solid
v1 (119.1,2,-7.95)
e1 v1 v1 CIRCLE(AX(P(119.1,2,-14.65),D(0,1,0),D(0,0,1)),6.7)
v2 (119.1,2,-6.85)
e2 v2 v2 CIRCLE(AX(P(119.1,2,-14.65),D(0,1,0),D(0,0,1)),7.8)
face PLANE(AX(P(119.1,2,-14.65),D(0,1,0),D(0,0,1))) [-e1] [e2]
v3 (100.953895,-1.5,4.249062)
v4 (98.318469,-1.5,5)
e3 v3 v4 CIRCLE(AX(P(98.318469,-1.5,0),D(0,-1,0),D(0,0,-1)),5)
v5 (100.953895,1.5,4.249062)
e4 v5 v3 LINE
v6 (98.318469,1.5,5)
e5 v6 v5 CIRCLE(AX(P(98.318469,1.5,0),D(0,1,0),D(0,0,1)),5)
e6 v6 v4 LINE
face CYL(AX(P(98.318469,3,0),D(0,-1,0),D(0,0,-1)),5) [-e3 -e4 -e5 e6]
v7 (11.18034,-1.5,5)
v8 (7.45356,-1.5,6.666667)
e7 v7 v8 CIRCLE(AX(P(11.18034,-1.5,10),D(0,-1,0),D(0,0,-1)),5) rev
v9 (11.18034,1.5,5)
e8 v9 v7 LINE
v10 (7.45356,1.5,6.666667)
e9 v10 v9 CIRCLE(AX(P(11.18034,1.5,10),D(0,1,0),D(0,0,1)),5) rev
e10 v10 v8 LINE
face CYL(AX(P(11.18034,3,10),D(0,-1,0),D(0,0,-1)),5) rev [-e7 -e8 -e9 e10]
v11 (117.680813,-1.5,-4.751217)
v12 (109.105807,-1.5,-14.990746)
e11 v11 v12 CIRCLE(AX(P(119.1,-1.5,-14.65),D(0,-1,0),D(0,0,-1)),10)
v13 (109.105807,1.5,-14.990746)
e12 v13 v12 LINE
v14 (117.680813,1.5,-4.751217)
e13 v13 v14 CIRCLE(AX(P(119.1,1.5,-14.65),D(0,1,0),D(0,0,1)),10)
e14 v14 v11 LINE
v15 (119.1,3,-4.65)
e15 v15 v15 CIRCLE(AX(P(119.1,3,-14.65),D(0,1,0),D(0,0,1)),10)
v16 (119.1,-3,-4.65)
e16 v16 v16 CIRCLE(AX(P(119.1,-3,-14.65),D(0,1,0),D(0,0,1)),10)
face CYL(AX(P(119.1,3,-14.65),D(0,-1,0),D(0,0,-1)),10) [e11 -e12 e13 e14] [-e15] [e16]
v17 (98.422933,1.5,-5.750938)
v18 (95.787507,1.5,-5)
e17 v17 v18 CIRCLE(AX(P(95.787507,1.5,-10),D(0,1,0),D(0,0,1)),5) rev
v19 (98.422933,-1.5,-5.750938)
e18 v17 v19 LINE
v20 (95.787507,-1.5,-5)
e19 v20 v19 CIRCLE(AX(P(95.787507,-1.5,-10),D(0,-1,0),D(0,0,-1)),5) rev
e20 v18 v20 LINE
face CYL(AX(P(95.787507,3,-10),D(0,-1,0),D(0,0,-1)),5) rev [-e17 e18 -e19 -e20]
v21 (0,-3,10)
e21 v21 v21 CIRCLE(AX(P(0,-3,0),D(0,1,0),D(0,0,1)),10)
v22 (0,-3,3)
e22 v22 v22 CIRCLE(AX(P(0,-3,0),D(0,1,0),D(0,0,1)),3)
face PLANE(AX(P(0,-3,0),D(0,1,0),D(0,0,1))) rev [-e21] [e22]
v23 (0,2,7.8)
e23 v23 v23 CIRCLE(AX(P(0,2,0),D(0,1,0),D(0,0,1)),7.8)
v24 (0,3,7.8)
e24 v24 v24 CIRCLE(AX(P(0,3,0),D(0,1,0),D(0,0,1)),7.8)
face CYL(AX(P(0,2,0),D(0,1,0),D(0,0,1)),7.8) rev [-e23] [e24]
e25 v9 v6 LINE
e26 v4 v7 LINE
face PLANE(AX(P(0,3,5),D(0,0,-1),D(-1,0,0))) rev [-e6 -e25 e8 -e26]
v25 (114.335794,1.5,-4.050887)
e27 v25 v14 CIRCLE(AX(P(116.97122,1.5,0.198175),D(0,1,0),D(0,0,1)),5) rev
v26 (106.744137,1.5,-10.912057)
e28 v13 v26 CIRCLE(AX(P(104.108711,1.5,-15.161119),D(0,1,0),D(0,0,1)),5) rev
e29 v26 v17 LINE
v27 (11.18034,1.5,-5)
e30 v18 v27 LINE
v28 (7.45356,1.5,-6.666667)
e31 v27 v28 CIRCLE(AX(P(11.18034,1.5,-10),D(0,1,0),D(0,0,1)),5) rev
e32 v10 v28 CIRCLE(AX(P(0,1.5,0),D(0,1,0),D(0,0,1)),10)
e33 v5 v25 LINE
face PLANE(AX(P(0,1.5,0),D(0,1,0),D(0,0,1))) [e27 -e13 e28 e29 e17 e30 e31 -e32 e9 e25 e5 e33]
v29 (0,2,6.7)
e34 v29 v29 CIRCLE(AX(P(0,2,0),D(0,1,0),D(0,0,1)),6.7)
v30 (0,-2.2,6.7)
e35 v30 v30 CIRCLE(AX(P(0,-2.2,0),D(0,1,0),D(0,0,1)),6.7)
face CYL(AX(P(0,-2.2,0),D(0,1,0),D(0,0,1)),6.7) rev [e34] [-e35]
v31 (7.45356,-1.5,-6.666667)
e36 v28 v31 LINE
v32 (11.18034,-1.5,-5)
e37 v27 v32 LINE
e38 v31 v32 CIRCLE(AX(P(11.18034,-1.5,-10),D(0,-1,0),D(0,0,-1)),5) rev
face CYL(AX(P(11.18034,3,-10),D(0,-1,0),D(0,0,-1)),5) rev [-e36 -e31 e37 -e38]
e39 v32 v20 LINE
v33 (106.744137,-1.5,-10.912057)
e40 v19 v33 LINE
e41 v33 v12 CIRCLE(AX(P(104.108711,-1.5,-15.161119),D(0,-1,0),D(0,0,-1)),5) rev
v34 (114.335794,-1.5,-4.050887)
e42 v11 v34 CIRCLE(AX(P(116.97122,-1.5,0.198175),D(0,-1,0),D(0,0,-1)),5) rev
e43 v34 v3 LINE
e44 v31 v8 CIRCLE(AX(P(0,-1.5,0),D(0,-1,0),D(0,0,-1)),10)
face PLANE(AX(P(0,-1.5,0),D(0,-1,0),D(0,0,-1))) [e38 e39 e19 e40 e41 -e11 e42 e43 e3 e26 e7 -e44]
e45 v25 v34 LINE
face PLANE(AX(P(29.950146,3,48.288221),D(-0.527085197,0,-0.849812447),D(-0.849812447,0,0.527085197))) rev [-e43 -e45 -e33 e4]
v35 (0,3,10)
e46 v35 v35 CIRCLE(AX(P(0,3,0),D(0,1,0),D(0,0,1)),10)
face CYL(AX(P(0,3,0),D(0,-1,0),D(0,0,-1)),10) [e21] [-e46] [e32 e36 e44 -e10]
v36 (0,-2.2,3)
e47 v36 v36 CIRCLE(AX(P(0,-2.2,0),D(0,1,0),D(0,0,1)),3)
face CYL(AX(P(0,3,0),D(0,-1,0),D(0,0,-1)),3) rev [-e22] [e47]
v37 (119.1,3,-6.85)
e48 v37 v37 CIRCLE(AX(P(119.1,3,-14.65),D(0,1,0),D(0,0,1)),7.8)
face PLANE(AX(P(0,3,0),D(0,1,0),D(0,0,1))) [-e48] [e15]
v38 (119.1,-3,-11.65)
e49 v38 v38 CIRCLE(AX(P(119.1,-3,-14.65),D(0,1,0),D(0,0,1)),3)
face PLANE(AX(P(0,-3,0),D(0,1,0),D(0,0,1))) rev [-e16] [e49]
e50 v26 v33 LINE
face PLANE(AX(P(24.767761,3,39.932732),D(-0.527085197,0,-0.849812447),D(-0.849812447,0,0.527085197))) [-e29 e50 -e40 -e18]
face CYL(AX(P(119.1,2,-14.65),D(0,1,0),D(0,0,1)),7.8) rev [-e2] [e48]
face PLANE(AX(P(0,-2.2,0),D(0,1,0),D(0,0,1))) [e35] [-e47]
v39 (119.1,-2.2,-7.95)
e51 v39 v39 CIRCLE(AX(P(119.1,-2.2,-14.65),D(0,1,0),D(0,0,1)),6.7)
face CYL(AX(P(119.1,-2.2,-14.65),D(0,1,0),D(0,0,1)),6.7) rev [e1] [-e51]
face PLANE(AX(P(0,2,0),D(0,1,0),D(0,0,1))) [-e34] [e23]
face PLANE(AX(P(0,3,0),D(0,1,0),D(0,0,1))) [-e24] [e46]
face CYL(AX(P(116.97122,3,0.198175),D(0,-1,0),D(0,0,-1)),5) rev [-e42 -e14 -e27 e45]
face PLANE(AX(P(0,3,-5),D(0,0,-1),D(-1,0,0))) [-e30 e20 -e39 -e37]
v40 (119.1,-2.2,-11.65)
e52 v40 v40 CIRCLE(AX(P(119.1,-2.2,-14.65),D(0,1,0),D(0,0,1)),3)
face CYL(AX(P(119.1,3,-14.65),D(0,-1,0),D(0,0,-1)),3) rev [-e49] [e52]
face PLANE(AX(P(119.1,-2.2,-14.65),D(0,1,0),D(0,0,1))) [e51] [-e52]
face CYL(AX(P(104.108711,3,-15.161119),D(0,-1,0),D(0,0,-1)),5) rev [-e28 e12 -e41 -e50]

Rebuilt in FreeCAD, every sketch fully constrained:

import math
import FreeCAD as App
import Part
import Sketcher
from FreeCAD import Vector
Q = App.Units.Quantity

doc = App.newDocument("Part")
body = doc.addObject("PartDesign::Body", "Body")

sketch1 = body.newObject("Sketcher::SketchObject", "Sketch")
sketch1.AttachmentSupport = (doc.getObject("XZ_Plane"), [""])
sketch1.MapMode = "FlatFace"
sketch1.addGeometry(Part.ArcOfCircle(Part.Circle(Vector(11.2, -10, 0), Vector(0, 0, 1), 5), math.radians(90), math.radians(138)), False)
sketch1.addGeometry(Part.ArcOfCircle(Part.Circle(Vector(0, 0, 0), Vector(0, 0, 1), 10), math.radians(42), math.radians(318)), False)
sketch1.addGeometry(Part.ArcOfCircle(Part.Circle(Vector(11.2, 10, 0), Vector(0, 0, 1), 5), math.radians(-138), math.radians(-90)), False)
sketch1.addGeometry(Part.LineSegment(Vector(11.2, 5, 0), Vector(98.3, 5, 0)), False)
sketch1.addGeometry(Part.ArcOfCircle(Part.Circle(Vector(98.3, 0, 0), Vector(0, 0, 1), 5), math.radians(58), math.radians(90)), False)
sketch1.addGeometry(Part.LineSegment(Vector(101, 4.2, 0), Vector(114.3, -4.1, 0)), False)
sketch1.addGeometry(Part.ArcOfCircle(Part.Circle(Vector(117, 0.2, 0), Vector(0, 0, 1), 5), math.radians(-122), math.radians(-82)), False)
sketch1.addGeometry(Part.ArcOfCircle(Part.Circle(Vector(119.1, -14.7, 0), Vector(0, 0, 1), 10), math.radians(-178), math.radians(98)), False)
sketch1.addGeometry(Part.ArcOfCircle(Part.Circle(Vector(104.1, -15.2, 0), Vector(0, 0, 1), 5), math.radians(2), math.radians(58)), False)
sketch1.addGeometry(Part.LineSegment(Vector(106.7, -10.9, 0), Vector(98.4, -5.8, 0)), False)
sketch1.addGeometry(Part.ArcOfCircle(Part.Circle(Vector(95.8, -10, 0), Vector(0, 0, 1), 5), math.radians(58), math.radians(90)), False)
sketch1.addGeometry(Part.LineSegment(Vector(95.8, -5, 0), Vector(11.2, -5, 0)), False)
sketch1.addGeometry(Part.Circle(Vector(0, 0, 0), Vector(0, 0, 1), 3), False)
sketch1.addGeometry(Part.Circle(Vector(119.1, -14.7, 0), Vector(0, 0, 1), 3), False)
sketch1.addConstraint(Sketcher.Constraint("Tangent", 0, 2, 1, 2))
sketch1.addConstraint(Sketcher.Constraint("Tangent", 1, 1, 2, 1))
sketch1.addConstraint(Sketcher.Constraint("Tangent", 2, 2, 3, 1))
sketch1.addConstraint(Sketcher.Constraint("Tangent", 3, 2, 4, 2))
sketch1.addConstraint(Sketcher.Constraint("Tangent", 4, 1, 5, 1))
sketch1.addConstraint(Sketcher.Constraint("Tangent", 5, 2, 6, 1))
sketch1.addConstraint(Sketcher.Constraint("Tangent", 6, 2, 7, 2))
sketch1.addConstraint(Sketcher.Constraint("Tangent", 7, 1, 8, 1))
sketch1.addConstraint(Sketcher.Constraint("Tangent", 8, 2, 9, 1))
sketch1.addConstraint(Sketcher.Constraint("Tangent", 9, 2, 10, 1))
sketch1.addConstraint(Sketcher.Constraint("Tangent", 10, 2, 11, 1))
sketch1.addConstraint(Sketcher.Constraint("Tangent", 11, 2, 0, 1))
sketch1.addConstraint(Sketcher.Constraint("Horizontal", 3))
sketch1.addConstraint(Sketcher.Constraint("Horizontal", 11))
sketch1.addConstraint(Sketcher.Constraint("Coincident", 1, 3, -1, 1))
sketch1.addConstraint(Sketcher.Constraint("Coincident", 12, 3, -1, 1))
sketch1.addConstraint(Sketcher.Constraint("Coincident", 13, 3, 7, 3))
sketch1.addConstraint(Sketcher.Constraint("Equal", 0, 2))
sketch1.addConstraint(Sketcher.Constraint("Equal", 2, 4))
sketch1.addConstraint(Sketcher.Constraint("Equal", 4, 6))
sketch1.addConstraint(Sketcher.Constraint("Equal", 1, 7))
sketch1.addConstraint(Sketcher.Constraint("Equal", 6, 8))
sketch1.addConstraint(Sketcher.Constraint("Equal", 8, 10))
sketch1.addConstraint(Sketcher.Constraint("Equal", 12, 13))
sketch1.addConstraint(Sketcher.Constraint("PointOnObject", 4, 3, -1))
sketch1.addConstraint(Sketcher.Constraint("Parallel", 5, 9))
sketch1.addConstraint(Sketcher.Constraint("Vertical", 0, 3, 2, 3))
sketch1.addConstraint(Sketcher.Constraint("Diameter", 12, Q("6 mm")))
sketch1.addConstraint(Sketcher.Constraint("Radius", 0, Q("5 mm")))
sketch1.addConstraint(Sketcher.Constraint("Radius", 1, Q("10 mm")))
sketch1.addConstraint(Sketcher.Constraint("DistanceX", -1, 1, 7, 3, Q("119.1 mm")))
sketch1.addConstraint(Sketcher.Constraint("DistanceY", 7, 3, -1, 1, Q("14.65 mm")))
sketch1.addConstraint(Sketcher.Constraint("DistanceX", 3, 1, 3, 2, Q("87.138129 mm")))
sketch1.addConstraint(Sketcher.Constraint("DistanceX", 4, 1, 5, 2, Q("13.381898 mm")))
sketch1.addConstraint(Sketcher.Constraint("Distance", 9, Q("9.791812 mm")))
pad1 = body.newObject("PartDesign::Pad", "Pad")
pad1.Profile = sketch1
pad1.Length = 6
pad1.Midplane = True

sketch2 = body.newObject("Sketcher::SketchObject", "Sketch001")
sketch2.AttachmentSupport = (doc.getObject("XZ_Plane"), [""])
sketch2.MapMode = "FlatFace"
sketch2.AttachmentOffset = App.Placement(Vector(0, 0, -3), App.Rotation())
sketch2.addGeometry(Part.Circle(Vector(119, -15, 0), Vector(0, 0, 1), 8), False)
sketch2.addGeometry(Part.Circle(Vector(0, 0, 0), Vector(0, 0, 1), 8), False)
sketch2.addConstraint(Sketcher.Constraint("Coincident", 1, 3, -1, 1))
sketch2.addConstraint(Sketcher.Constraint("Equal", 0, 1))
sketch2.addConstraint(Sketcher.Constraint("Diameter", 0, Q("15.6 mm")))
sketch2.addConstraint(Sketcher.Constraint("DistanceX", -1, 1, 0, 3, Q("119.1 mm")))
sketch2.addConstraint(Sketcher.Constraint("DistanceY", 0, 3, -1, 1, Q("14.65 mm")))
pocket1 = body.newObject("PartDesign::Pocket", "Pocket")
pocket1.Profile = sketch2
pocket1.Length = 1
pocket1.Reversed = True

sketch3 = body.newObject("Sketcher::SketchObject", "Sketch002")
sketch3.AttachmentSupport = (doc.getObject("XZ_Plane"), [""])
sketch3.MapMode = "FlatFace"
sketch3.AttachmentOffset = App.Placement(Vector(0, 0, -3), App.Rotation())
sketch3.addGeometry(Part.Circle(Vector(0, 0, 0), Vector(0, 0, 1), 7), False)
sketch3.addGeometry(Part.Circle(Vector(119, -15, 0), Vector(0, 0, 1), 7), False)
sketch3.addConstraint(Sketcher.Constraint("Coincident", 0, 3, -1, 1))
sketch3.addConstraint(Sketcher.Constraint("Equal", 0, 1))
sketch3.addConstraint(Sketcher.Constraint("Diameter", 0, Q("13.4 mm")))
sketch3.addConstraint(Sketcher.Constraint("DistanceX", -1, 1, 1, 3, Q("119.1 mm")))
sketch3.addConstraint(Sketcher.Constraint("DistanceY", 1, 3, -1, 1, Q("14.65 mm")))
pocket2 = body.newObject("PartDesign::Pocket", "Pocket001")
pocket2.Profile = sketch3
pocket2.Length = 5.2
pocket2.Reversed = True

sketch4 = body.newObject("Sketcher::SketchObject", "Sketch003")
sketch4.AttachmentSupport = (doc.getObject("XZ_Plane"), [""])
sketch4.MapMode = "FlatFace"
sketch4.AttachmentOffset = App.Placement(Vector(0, 0, -3), App.Rotation())
sketch4.addGeometry(Part.LineSegment(Vector(106.7, -10.9, 0), Vector(98.4, -5.8, 0)), False)
sketch4.addGeometry(Part.ArcOfCircle(Part.Circle(Vector(95.8, -10, 0), Vector(0, 0, 1), 5), math.radians(58), math.radians(90)), False)
sketch4.addGeometry(Part.LineSegment(Vector(95.8, -5, 0), Vector(11.2, -5, 0)), False)
sketch4.addGeometry(Part.ArcOfCircle(Part.Circle(Vector(11.2, -10, 0), Vector(0, 0, 1), 5), math.radians(90), math.radians(138)), False)
sketch4.addGeometry(Part.ArcOfCircle(Part.Circle(Vector(0, 0, 0), Vector(0, 0, 1), 10), math.radians(-42), math.radians(0)), False)
sketch4.addGeometry(Part.ArcOfCircle(Part.Circle(Vector(0, 0, 0), Vector(0, 0, 1), 10), math.radians(0), math.radians(42)), False)
sketch4.addGeometry(Part.ArcOfCircle(Part.Circle(Vector(11.2, 10, 0), Vector(0, 0, 1), 5), math.radians(-138), math.radians(-90)), False)
sketch4.addGeometry(Part.LineSegment(Vector(11.2, 5, 0), Vector(98.3, 5, 0)), False)
sketch4.addGeometry(Part.ArcOfCircle(Part.Circle(Vector(98.3, 0, 0), Vector(0, 0, 1), 5), math.radians(58), math.radians(90)), False)
sketch4.addGeometry(Part.LineSegment(Vector(101, 4.2, 0), Vector(114.3, -4.1, 0)), False)
sketch4.addGeometry(Part.ArcOfCircle(Part.Circle(Vector(117, 0.2, 0), Vector(0, 0, 1), 5), math.radians(-122), math.radians(-82)), False)
sketch4.addGeometry(Part.ArcOfCircle(Part.Circle(Vector(119.1, -14.7, 0), Vector(0, 0, 1), 10), math.radians(98), math.radians(182)), False)
sketch4.addGeometry(Part.ArcOfCircle(Part.Circle(Vector(104.1, -15.2, 0), Vector(0, 0, 1), 5), math.radians(2), math.radians(58)), False)
sketch4.addConstraint(Sketcher.Constraint("Tangent", 0, 2, 1, 1))
sketch4.addConstraint(Sketcher.Constraint("Tangent", 1, 2, 2, 1))
sketch4.addConstraint(Sketcher.Constraint("Tangent", 2, 2, 3, 1))
sketch4.addConstraint(Sketcher.Constraint("Tangent", 3, 2, 4, 1))
sketch4.addConstraint(Sketcher.Constraint("Tangent", 4, 2, 5, 1))
sketch4.addConstraint(Sketcher.Constraint("Tangent", 5, 2, 6, 1))
sketch4.addConstraint(Sketcher.Constraint("Tangent", 6, 2, 7, 1))
sketch4.addConstraint(Sketcher.Constraint("Tangent", 7, 2, 8, 2))
sketch4.addConstraint(Sketcher.Constraint("Tangent", 8, 1, 9, 1))
sketch4.addConstraint(Sketcher.Constraint("Tangent", 9, 2, 10, 1))
sketch4.addConstraint(Sketcher.Constraint("Tangent", 10, 2, 11, 1))
sketch4.addConstraint(Sketcher.Constraint("Tangent", 11, 2, 12, 1))
sketch4.addConstraint(Sketcher.Constraint("Tangent", 12, 2, 0, 1))
sketch4.addConstraint(Sketcher.Constraint("Horizontal", 2))
sketch4.addConstraint(Sketcher.Constraint("Horizontal", 7))
sketch4.addConstraint(Sketcher.Constraint("Coincident", 4, 3, -1, 1))
sketch4.addConstraint(Sketcher.Constraint("Equal", 1, 3))
sketch4.addConstraint(Sketcher.Constraint("Equal", 4, 5))
sketch4.addConstraint(Sketcher.Constraint("Equal", 3, 6))
sketch4.addConstraint(Sketcher.Constraint("Equal", 6, 8))
sketch4.addConstraint(Sketcher.Constraint("Equal", 8, 10))
sketch4.addConstraint(Sketcher.Constraint("Equal", 5, 11))
sketch4.addConstraint(Sketcher.Constraint("Equal", 10, 12))
sketch4.addConstraint(Sketcher.Constraint("PointOnObject", 8, 3, -1))
sketch4.addConstraint(Sketcher.Constraint("PointOnObject", 4, 2, -1))
sketch4.addConstraint(Sketcher.Constraint("Parallel", 0, 9))
sketch4.addConstraint(Sketcher.Constraint("Vertical", 3, 3, 6, 3))
sketch4.addConstraint(Sketcher.Constraint("Radius", 1, Q("5 mm")))
sketch4.addConstraint(Sketcher.Constraint("Radius", 4, Q("10 mm")))
sketch4.addConstraint(Sketcher.Constraint("DistanceX", -1, 1, 11, 3, Q("119.1 mm")))
sketch4.addConstraint(Sketcher.Constraint("DistanceY", 11, 3, -1, 1, Q("14.65 mm")))
sketch4.addConstraint(Sketcher.Constraint("DistanceX", 7, 1, 7, 2, Q("87.138129 mm")))
sketch4.addConstraint(Sketcher.Constraint("DistanceX", 8, 1, 9, 2, Q("13.381898 mm")))
sketch4.addConstraint(Sketcher.Constraint("Distance", 0, Q("9.791812 mm")))
pocket3 = body.newObject("PartDesign::Pocket", "Pocket002")
pocket3.Profile = sketch4
pocket3.Length = 1.5
pocket3.Reversed = True

sketch5 = body.newObject("Sketcher::SketchObject", "Sketch004")
sketch5.AttachmentSupport = (doc.getObject("XZ_Plane"), [""])
sketch5.MapMode = "FlatFace"
sketch5.AttachmentOffset = App.Placement(Vector(0, 0, 1.5), App.Rotation())
sketch5.addGeometry(Part.ArcOfCircle(Part.Circle(Vector(0, 0, 0), Vector(0, 0, 1), 10), math.radians(0), math.radians(42)), False)
sketch5.addGeometry(Part.ArcOfCircle(Part.Circle(Vector(0, 0, 0), Vector(0, 0, 1), 10), math.radians(-42), math.radians(0)), False)
sketch5.addGeometry(Part.ArcOfCircle(Part.Circle(Vector(11.2, -10, 0), Vector(0, 0, 1), 5), math.radians(90), math.radians(138)), False)
sketch5.addGeometry(Part.LineSegment(Vector(11.2, -5, 0), Vector(95.8, -5, 0)), False)
sketch5.addGeometry(Part.ArcOfCircle(Part.Circle(Vector(95.8, -10, 0), Vector(0, 0, 1), 5), math.radians(58), math.radians(90)), False)
sketch5.addGeometry(Part.LineSegment(Vector(98.4, -5.8, 0), Vector(106.7, -10.9, 0)), False)
sketch5.addGeometry(Part.ArcOfCircle(Part.Circle(Vector(104.1, -15.2, 0), Vector(0, 0, 1), 5), math.radians(2), math.radians(58)), False)
sketch5.addGeometry(Part.ArcOfCircle(Part.Circle(Vector(119.1, -14.7, 0), Vector(0, 0, 1), 10), math.radians(98), math.radians(182)), False)
sketch5.addGeometry(Part.ArcOfCircle(Part.Circle(Vector(117, 0.2, 0), Vector(0, 0, 1), 5), math.radians(-122), math.radians(-82)), False)
sketch5.addGeometry(Part.LineSegment(Vector(114.3, -4.1, 0), Vector(101, 4.2, 0)), False)
sketch5.addGeometry(Part.ArcOfCircle(Part.Circle(Vector(98.3, 0, 0), Vector(0, 0, 1), 5), math.radians(58), math.radians(90)), False)
sketch5.addGeometry(Part.LineSegment(Vector(98.3, 5, 0), Vector(11.2, 5, 0)), False)
sketch5.addGeometry(Part.ArcOfCircle(Part.Circle(Vector(11.2, 10, 0), Vector(0, 0, 1), 5), math.radians(-138), math.radians(-90)), False)
sketch5.addConstraint(Sketcher.Constraint("Tangent", 0, 1, 1, 2))
sketch5.addConstraint(Sketcher.Constraint("Tangent", 1, 1, 2, 2))
sketch5.addConstraint(Sketcher.Constraint("Tangent", 2, 1, 3, 1))
sketch5.addConstraint(Sketcher.Constraint("Tangent", 3, 2, 4, 2))
sketch5.addConstraint(Sketcher.Constraint("Tangent", 4, 1, 5, 1))
sketch5.addConstraint(Sketcher.Constraint("Tangent", 5, 2, 6, 2))
sketch5.addConstraint(Sketcher.Constraint("Tangent", 6, 1, 7, 2))
sketch5.addConstraint(Sketcher.Constraint("Tangent", 7, 1, 8, 2))
sketch5.addConstraint(Sketcher.Constraint("Tangent", 8, 1, 9, 1))
sketch5.addConstraint(Sketcher.Constraint("Tangent", 9, 2, 10, 1))
sketch5.addConstraint(Sketcher.Constraint("Tangent", 10, 2, 11, 1))
sketch5.addConstraint(Sketcher.Constraint("Tangent", 11, 2, 12, 2))
sketch5.addConstraint(Sketcher.Constraint("Tangent", 12, 1, 0, 2))
sketch5.addConstraint(Sketcher.Constraint("Horizontal", 3))
sketch5.addConstraint(Sketcher.Constraint("Horizontal", 11))
sketch5.addConstraint(Sketcher.Constraint("Coincident", 0, 3, -1, 1))
sketch5.addConstraint(Sketcher.Constraint("Equal", 0, 1))
sketch5.addConstraint(Sketcher.Constraint("Equal", 2, 4))
sketch5.addConstraint(Sketcher.Constraint("Equal", 4, 6))
sketch5.addConstraint(Sketcher.Constraint("Equal", 1, 7))
sketch5.addConstraint(Sketcher.Constraint("Equal", 6, 8))
sketch5.addConstraint(Sketcher.Constraint("Equal", 8, 10))
sketch5.addConstraint(Sketcher.Constraint("Equal", 10, 12))
sketch5.addConstraint(Sketcher.Constraint("PointOnObject", 10, 3, -1))
sketch5.addConstraint(Sketcher.Constraint("PointOnObject", 0, 1, -1))
sketch5.addConstraint(Sketcher.Constraint("Parallel", 5, 9))
sketch5.addConstraint(Sketcher.Constraint("Vertical", 2, 3, 12, 3))
sketch5.addConstraint(Sketcher.Constraint("Radius", 0, Q("10 mm")))
sketch5.addConstraint(Sketcher.Constraint("Radius", 2, Q("5 mm")))
sketch5.addConstraint(Sketcher.Constraint("DistanceX", -1, 1, 7, 3, Q("119.1 mm")))
sketch5.addConstraint(Sketcher.Constraint("DistanceY", 7, 3, -1, 1, Q("14.65 mm")))
sketch5.addConstraint(Sketcher.Constraint("DistanceX", 11, 2, 11, 1, Q("87.138129 mm")))
sketch5.addConstraint(Sketcher.Constraint("DistanceX", 4, 3, 6, 1, Q("13.3183 mm")))
sketch5.addConstraint(Sketcher.Constraint("DistanceX", 9, 2, 8, 1, Q("13.381898 mm")))
pocket4 = body.newObject("PartDesign::Pocket", "Pocket003")
pocket4.Profile = sketch5
pocket4.Length = 1.5
pocket4.Reversed = True

doc.recompute()
